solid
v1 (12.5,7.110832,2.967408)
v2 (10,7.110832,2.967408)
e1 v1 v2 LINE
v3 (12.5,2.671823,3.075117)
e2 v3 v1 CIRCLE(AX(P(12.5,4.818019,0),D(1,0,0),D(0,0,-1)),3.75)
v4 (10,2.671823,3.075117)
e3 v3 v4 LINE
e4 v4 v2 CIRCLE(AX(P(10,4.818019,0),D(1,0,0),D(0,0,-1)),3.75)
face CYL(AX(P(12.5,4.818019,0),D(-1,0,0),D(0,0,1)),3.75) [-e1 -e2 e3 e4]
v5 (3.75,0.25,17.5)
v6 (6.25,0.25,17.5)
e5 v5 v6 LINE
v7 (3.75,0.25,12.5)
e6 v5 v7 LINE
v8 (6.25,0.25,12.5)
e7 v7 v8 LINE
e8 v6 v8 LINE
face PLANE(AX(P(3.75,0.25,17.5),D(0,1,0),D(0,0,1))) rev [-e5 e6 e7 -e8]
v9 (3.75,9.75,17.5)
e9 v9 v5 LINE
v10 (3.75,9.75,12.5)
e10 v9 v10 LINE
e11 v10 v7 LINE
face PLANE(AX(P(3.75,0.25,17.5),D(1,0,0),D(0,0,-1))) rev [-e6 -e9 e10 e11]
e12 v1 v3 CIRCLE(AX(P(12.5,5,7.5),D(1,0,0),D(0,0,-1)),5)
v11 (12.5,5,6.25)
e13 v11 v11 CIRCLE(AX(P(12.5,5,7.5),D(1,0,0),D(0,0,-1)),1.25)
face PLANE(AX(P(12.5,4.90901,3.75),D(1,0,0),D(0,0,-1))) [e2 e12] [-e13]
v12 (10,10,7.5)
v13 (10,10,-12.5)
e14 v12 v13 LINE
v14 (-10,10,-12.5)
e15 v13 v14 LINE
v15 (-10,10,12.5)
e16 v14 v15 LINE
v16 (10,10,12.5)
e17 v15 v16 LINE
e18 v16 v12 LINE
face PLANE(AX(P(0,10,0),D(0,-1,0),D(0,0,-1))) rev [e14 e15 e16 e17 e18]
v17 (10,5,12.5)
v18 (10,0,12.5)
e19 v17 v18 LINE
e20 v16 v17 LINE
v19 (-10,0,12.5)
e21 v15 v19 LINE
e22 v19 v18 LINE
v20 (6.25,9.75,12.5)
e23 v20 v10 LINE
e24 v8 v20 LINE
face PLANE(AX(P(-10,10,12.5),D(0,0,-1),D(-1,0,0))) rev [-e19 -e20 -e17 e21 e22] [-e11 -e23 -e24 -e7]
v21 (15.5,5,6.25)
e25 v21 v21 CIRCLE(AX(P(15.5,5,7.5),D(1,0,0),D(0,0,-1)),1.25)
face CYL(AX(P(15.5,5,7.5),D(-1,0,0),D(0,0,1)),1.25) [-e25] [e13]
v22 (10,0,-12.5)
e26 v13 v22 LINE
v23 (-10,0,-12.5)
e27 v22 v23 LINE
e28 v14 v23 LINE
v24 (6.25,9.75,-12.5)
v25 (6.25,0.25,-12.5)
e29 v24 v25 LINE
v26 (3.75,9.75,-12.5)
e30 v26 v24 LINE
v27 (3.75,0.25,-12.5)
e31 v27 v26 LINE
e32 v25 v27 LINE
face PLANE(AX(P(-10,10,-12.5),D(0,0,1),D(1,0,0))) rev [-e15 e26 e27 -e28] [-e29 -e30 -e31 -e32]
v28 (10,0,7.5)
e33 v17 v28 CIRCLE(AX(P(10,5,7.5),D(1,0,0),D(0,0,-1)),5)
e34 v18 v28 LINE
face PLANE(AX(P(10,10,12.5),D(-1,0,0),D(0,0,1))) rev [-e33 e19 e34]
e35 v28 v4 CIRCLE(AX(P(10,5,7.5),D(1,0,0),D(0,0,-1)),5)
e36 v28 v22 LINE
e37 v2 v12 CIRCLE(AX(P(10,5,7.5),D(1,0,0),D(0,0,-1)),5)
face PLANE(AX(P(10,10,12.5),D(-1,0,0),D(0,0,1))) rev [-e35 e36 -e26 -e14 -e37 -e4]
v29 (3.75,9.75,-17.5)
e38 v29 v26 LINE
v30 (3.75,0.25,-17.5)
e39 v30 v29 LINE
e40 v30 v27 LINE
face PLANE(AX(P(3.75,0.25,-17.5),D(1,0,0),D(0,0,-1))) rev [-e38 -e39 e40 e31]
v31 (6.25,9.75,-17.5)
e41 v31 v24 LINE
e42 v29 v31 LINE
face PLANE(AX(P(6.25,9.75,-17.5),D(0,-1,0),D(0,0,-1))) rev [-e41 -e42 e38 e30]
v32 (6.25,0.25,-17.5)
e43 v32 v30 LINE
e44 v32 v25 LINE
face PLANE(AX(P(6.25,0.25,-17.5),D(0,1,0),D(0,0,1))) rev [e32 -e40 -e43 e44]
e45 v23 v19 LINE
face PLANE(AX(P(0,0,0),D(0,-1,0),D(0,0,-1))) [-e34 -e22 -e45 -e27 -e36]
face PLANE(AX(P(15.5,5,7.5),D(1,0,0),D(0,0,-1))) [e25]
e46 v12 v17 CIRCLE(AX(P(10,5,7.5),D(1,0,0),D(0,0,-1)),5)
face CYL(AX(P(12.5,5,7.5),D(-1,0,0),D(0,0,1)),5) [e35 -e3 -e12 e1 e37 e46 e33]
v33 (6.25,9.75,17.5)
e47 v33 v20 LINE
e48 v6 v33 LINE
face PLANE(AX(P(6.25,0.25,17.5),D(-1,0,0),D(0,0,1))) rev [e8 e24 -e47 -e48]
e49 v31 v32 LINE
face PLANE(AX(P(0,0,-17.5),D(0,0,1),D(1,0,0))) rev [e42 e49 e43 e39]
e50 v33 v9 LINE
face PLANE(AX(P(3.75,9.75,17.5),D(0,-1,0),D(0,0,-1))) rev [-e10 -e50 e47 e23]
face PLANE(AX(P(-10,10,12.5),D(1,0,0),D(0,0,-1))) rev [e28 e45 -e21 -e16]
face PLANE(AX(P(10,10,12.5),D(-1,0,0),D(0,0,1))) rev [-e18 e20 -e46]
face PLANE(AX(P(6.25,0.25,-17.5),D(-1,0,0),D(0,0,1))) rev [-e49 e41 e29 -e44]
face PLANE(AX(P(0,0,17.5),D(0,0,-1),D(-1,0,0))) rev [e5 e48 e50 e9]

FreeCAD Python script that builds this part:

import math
import FreeCAD as App
import Part
import Sketcher
from FreeCAD import Vector

doc = App.newDocument("Part")
params = doc.addObject("Spreadsheet::Sheet", "Params")
for row, (alias, value) in enumerate([
    ("sketch1_width", "20 mm"),
    ("sketch1_height", "25 mm"),
    ("pad1_length", "10 mm"),
    ("sketch2_width", "2.5 mm"),
    ("sketch2_height", "9.5 mm"),
    ("pad2_length", "5 mm"),
    ("sketch3_width", "2.5 mm"),
    ("sketch3_height", "9.5 mm"),
    ("pad3_length", "5 mm"),
    ("sketch4_radius", "5 mm"),
    ("sketch4_radius2", "3.75 mm"),
    ("pad4_length", "2.5 mm"),
    ("sketch5_diameter", "2.5 mm"),
    ("pad5_length", "3 mm"),
], start=1):
    params.set(f"A{row}", alias)
    params.set(f"B{row}", "=" + value)
    params.setAlias(f"B{row}", alias)

body = doc.addObject("PartDesign::Body", "Body")

# Sketch on XZ plane
sketch1 = doc.addObject("Sketcher::SketchObject", "Sketch")
body.addObject(sketch1)
sketch1.AttachmentSupport = (doc.XZ_Plane, [""])
sketch1.MapMode = "FlatFace"
sketch1.addGeometry(Part.LineSegment(Vector(-10, -12, 0), Vector(-10, 12, 0)), False)
sketch1.addGeometry(Part.LineSegment(Vector(-10, 12, 0), Vector(10, 12, 0)), False)
sketch1.addGeometry(Part.LineSegment(Vector(10, 12, 0), Vector(10, -12, 0)), False)
sketch1.addGeometry(Part.LineSegment(Vector(10, -12, 0), Vector(-10, -12, 0)), False)
sketch1.addConstraint(Sketcher.Constraint("Coincident", 0, 2, 1, 1))
sketch1.addConstraint(Sketcher.Constraint("Coincident", 1, 2, 2, 1))
sketch1.addConstraint(Sketcher.Constraint("Coincident", 2, 2, 3, 1))
sketch1.addConstraint(Sketcher.Constraint("Coincident", 3, 2, 0, 1))
sketch1.addConstraint(Sketcher.Constraint("Vertical", 0))
sketch1.addConstraint(Sketcher.Constraint("Horizontal", 1))
sketch1.addConstraint(Sketcher.Constraint("Vertical", 2))
sketch1.addConstraint(Sketcher.Constraint("Horizontal", 3))
sketch1.addConstraint(Sketcher.Constraint("Symmetric", 0, 2, 2, 2, -1, 1))
sketch1.addConstraint(Sketcher.Constraint("DistanceX", 1, 1, 1, 2, 20.0))
sketch1.addConstraint(Sketcher.Constraint("DistanceY", 0, 1, 0, 2, 25.0))
sketch1.setExpression("Constraints[9]", "Params.sketch1_width")
sketch1.setExpression("Constraints[10]", "Params.sketch1_height")
pad1 = doc.addObject("PartDesign::Pad", "Pad")
body.addObject(pad1)
pad1.Profile = sketch1
pad1.setExpression("Length", "Params.pad1_length")
pad1.Reversed = True

# Sketch on XY plane
sketch2 = doc.addObject("Sketcher::SketchObject", "Sketch001")
body.addObject(sketch2)
sketch2.AttachmentSupport = (doc.XY_Plane, [""])
sketch2.MapMode = "FlatFace"
sketch2.AttachmentOffset = App.Placement(Vector(0, 0, -12.5), App.Rotation())
sketch2.addGeometry(Part.LineSegment(Vector(6.2, 9.8, 0), Vector(6.2, 0.2, 0)), False)
sketch2.addGeometry(Part.LineSegment(Vector(6.2, 0.2, 0), Vector(3.8, 0.2, 0)), False)
sketch2.addGeometry(Part.LineSegment(Vector(3.8, 0.2, 0), Vector(3.8, 9.8, 0)), False)
sketch2.addGeometry(Part.LineSegment(Vector(3.8, 9.8, 0), Vector(6.2, 9.8, 0)), False)
sketch2.addConstraint(Sketcher.Constraint("Coincident", 0, 2, 1, 1))
sketch2.addConstraint(Sketcher.Constraint("Coincident", 1, 2, 2, 1))
sketch2.addConstraint(Sketcher.Constraint("Coincident", 2, 2, 3, 1))
sketch2.addConstraint(Sketcher.Constraint("Coincident", 3, 2, 0, 1))
sketch2.addConstraint(Sketcher.Constraint("Vertical", 0))
sketch2.addConstraint(Sketcher.Constraint("Horizontal", 1))
sketch2.addConstraint(Sketcher.Constraint("Vertical", 2))
sketch2.addConstraint(Sketcher.Constraint("Horizontal", 3))
sketch2.addConstraint(Sketcher.Constraint("DistanceX", 1, 2, 1, 1, 2.5))
sketch2.addConstraint(Sketcher.Constraint("DistanceY", 0, 2, 0, 1, 9.5))
sketch2.addConstraint(Sketcher.Constraint("DistanceX", -1, 1, 0, 2, 6.25))
sketch2.addConstraint(Sketcher.Constraint("DistanceY", -1, 1, 0, 2, 0.25))
sketch2.setExpression("Constraints[8]", "Params.sketch2_width")
sketch2.setExpression("Constraints[9]", "Params.sketch2_height")
pad2 = doc.addObject("PartDesign::Pad", "Pad001")
body.addObject(pad2)
pad2.Profile = sketch2
pad2.setExpression("Length", "Params.pad2_length")
pad2.Reversed = True

# Sketch on XY plane
sketch3 = doc.addObject("Sketcher::SketchObject", "Sketch002")
body.addObject(sketch3)
sketch3.AttachmentSupport = (doc.XY_Plane, [""])
sketch3.MapMode = "FlatFace"
sketch3.AttachmentOffset = App.Placement(Vector(0, 0, 12.5), App.Rotation())
sketch3.addGeometry(Part.LineSegment(Vector(3.8, 9.8, 0), Vector(3.8, 0.2, 0)), False)
sketch3.addGeometry(Part.LineSegment(Vector(3.8, 0.2, 0), Vector(6.2, 0.2, 0)), False)
sketch3.addGeometry(Part.LineSegment(Vector(6.2, 0.2, 0), Vector(6.2, 9.8, 0)), False)
sketch3.addGeometry(Part.LineSegment(Vector(6.2, 9.8, 0), Vector(3.8, 9.8, 0)), False)
sketch3.addConstraint(Sketcher.Constraint("Coincident", 0, 2, 1, 1))
sketch3.addConstraint(Sketcher.Constraint("Coincident", 1, 2, 2, 1))
sketch3.addConstraint(Sketcher.Constraint("Coincident", 2, 2, 3, 1))
sketch3.addConstraint(Sketcher.Constraint("Coincident", 3, 2, 0, 1))
sketch3.addConstraint(Sketcher.Constraint("Vertical", 0))
sketch3.addConstraint(Sketcher.Constraint("Horizontal", 1))
sketch3.addConstraint(Sketcher.Constraint("Vertical", 2))
sketch3.addConstraint(Sketcher.Constraint("Horizontal", 3))
sketch3.addConstraint(Sketcher.Constraint("DistanceX", 1, 1, 1, 2, 2.5))
sketch3.addConstraint(Sketcher.Constraint("DistanceY", 0, 2, 0, 1, 9.5))
sketch3.addConstraint(Sketcher.Constraint("DistanceX", -1, 1, 0, 2, 3.75))
sketch3.addConstraint(Sketcher.Constraint("DistanceY", -1, 1, 0, 2, 0.25))
sketch3.setExpression("Constraints[8]", "Params.sketch3_width")
sketch3.setExpression("Constraints[9]", "Params.sketch3_height")
pad3 = doc.addObject("PartDesign::Pad", "Pad002")
body.addObject(pad3)
pad3.Profile = sketch3
pad3.setExpression("Length", "Params.pad3_length")

# Sketch on YZ plane
sketch4 = doc.addObject("Sketcher::SketchObject", "Sketch003")
body.addObject(sketch4)
sketch4.AttachmentSupport = (doc.YZ_Plane, [""])
sketch4.MapMode = "FlatFace"
sketch4.AttachmentOffset = App.Placement(Vector(0, 0, 10), App.Rotation())
sketch4.addGeometry(Part.ArcOfCircle(Part.Circle(Vector(5, 7.5, 0), Vector(0, 0, 1), 5), math.radians(-65), math.radians(242)), False)
sketch4.addGeometry(Part.ArcOfCircle(Part.Circle(Vector(4.8, 0, 0), Vector(0, 0, 1), 3.8), math.radians(125), math.radians(412)), False)
sketch4.addConstraint(Sketcher.Constraint("Coincident", 0, 1, 1, 2))
sketch4.addConstraint(Sketcher.Constraint("Coincident", 1, 1, 0, 2))
sketch4.addConstraint(Sketcher.Constraint("PointOnObject", 1, 3, -1))
sketch4.addConstraint(Sketcher.Constraint("Radius", 0, 5.0))
sketch4.addConstraint(Sketcher.Constraint("Radius", 1, 3.75))
sketch4.addConstraint(Sketcher.Constraint("DistanceX", -1, 1, 0, 3, 5.0))
sketch4.addConstraint(Sketcher.Constraint("DistanceY", -1, 1, 0, 3, 7.5))
sketch4.addConstraint(Sketcher.Constraint("DistanceX", -1, 1, 1, 3, 4.818019))
sketch4.setExpression("Constraints[3]", "Params.sketch4_radius")
sketch4.setExpression("Constraints[4]", "Params.sketch4_radius2")
pad4 = doc.addObject("PartDesign::Pad", "Pad003")
body.addObject(pad4)
pad4.Profile = sketch4
pad4.setExpression("Length", "Params.pad4_length")

# Sketch on YZ plane
sketch5 = doc.addObject("Sketcher::SketchObject", "Sketch004")
body.addObject(sketch5)
sketch5.AttachmentSupport = (doc.YZ_Plane, [""])
sketch5.MapMode = "FlatFace"
sketch5.AttachmentOffset = App.Placement(Vector(0, 0, 12.5), App.Rotation())
sketch5.addGeometry(Part.Circle(Vector(5, 7.5, 0), Vector(0, 0, 1), 1.2), False)
sketch5.addConstraint(Sketcher.Constraint("Diameter", 0, 2.5))
sketch5.addConstraint(Sketcher.Constraint("DistanceX", -1, 1, 0, 3, 5.0))
sketch5.addConstraint(Sketcher.Constraint("DistanceY", -1, 1, 0, 3, 7.5))
sketch5.setExpression("Constraints[0]", "Params.sketch5_diameter")
pad5 = doc.addObject("PartDesign::Pad", "Pad004")
body.addObject(pad5)
pad5.Profile = sketch5
pad5.setExpression("Length", "Params.pad5_length")

doc.recompute()
